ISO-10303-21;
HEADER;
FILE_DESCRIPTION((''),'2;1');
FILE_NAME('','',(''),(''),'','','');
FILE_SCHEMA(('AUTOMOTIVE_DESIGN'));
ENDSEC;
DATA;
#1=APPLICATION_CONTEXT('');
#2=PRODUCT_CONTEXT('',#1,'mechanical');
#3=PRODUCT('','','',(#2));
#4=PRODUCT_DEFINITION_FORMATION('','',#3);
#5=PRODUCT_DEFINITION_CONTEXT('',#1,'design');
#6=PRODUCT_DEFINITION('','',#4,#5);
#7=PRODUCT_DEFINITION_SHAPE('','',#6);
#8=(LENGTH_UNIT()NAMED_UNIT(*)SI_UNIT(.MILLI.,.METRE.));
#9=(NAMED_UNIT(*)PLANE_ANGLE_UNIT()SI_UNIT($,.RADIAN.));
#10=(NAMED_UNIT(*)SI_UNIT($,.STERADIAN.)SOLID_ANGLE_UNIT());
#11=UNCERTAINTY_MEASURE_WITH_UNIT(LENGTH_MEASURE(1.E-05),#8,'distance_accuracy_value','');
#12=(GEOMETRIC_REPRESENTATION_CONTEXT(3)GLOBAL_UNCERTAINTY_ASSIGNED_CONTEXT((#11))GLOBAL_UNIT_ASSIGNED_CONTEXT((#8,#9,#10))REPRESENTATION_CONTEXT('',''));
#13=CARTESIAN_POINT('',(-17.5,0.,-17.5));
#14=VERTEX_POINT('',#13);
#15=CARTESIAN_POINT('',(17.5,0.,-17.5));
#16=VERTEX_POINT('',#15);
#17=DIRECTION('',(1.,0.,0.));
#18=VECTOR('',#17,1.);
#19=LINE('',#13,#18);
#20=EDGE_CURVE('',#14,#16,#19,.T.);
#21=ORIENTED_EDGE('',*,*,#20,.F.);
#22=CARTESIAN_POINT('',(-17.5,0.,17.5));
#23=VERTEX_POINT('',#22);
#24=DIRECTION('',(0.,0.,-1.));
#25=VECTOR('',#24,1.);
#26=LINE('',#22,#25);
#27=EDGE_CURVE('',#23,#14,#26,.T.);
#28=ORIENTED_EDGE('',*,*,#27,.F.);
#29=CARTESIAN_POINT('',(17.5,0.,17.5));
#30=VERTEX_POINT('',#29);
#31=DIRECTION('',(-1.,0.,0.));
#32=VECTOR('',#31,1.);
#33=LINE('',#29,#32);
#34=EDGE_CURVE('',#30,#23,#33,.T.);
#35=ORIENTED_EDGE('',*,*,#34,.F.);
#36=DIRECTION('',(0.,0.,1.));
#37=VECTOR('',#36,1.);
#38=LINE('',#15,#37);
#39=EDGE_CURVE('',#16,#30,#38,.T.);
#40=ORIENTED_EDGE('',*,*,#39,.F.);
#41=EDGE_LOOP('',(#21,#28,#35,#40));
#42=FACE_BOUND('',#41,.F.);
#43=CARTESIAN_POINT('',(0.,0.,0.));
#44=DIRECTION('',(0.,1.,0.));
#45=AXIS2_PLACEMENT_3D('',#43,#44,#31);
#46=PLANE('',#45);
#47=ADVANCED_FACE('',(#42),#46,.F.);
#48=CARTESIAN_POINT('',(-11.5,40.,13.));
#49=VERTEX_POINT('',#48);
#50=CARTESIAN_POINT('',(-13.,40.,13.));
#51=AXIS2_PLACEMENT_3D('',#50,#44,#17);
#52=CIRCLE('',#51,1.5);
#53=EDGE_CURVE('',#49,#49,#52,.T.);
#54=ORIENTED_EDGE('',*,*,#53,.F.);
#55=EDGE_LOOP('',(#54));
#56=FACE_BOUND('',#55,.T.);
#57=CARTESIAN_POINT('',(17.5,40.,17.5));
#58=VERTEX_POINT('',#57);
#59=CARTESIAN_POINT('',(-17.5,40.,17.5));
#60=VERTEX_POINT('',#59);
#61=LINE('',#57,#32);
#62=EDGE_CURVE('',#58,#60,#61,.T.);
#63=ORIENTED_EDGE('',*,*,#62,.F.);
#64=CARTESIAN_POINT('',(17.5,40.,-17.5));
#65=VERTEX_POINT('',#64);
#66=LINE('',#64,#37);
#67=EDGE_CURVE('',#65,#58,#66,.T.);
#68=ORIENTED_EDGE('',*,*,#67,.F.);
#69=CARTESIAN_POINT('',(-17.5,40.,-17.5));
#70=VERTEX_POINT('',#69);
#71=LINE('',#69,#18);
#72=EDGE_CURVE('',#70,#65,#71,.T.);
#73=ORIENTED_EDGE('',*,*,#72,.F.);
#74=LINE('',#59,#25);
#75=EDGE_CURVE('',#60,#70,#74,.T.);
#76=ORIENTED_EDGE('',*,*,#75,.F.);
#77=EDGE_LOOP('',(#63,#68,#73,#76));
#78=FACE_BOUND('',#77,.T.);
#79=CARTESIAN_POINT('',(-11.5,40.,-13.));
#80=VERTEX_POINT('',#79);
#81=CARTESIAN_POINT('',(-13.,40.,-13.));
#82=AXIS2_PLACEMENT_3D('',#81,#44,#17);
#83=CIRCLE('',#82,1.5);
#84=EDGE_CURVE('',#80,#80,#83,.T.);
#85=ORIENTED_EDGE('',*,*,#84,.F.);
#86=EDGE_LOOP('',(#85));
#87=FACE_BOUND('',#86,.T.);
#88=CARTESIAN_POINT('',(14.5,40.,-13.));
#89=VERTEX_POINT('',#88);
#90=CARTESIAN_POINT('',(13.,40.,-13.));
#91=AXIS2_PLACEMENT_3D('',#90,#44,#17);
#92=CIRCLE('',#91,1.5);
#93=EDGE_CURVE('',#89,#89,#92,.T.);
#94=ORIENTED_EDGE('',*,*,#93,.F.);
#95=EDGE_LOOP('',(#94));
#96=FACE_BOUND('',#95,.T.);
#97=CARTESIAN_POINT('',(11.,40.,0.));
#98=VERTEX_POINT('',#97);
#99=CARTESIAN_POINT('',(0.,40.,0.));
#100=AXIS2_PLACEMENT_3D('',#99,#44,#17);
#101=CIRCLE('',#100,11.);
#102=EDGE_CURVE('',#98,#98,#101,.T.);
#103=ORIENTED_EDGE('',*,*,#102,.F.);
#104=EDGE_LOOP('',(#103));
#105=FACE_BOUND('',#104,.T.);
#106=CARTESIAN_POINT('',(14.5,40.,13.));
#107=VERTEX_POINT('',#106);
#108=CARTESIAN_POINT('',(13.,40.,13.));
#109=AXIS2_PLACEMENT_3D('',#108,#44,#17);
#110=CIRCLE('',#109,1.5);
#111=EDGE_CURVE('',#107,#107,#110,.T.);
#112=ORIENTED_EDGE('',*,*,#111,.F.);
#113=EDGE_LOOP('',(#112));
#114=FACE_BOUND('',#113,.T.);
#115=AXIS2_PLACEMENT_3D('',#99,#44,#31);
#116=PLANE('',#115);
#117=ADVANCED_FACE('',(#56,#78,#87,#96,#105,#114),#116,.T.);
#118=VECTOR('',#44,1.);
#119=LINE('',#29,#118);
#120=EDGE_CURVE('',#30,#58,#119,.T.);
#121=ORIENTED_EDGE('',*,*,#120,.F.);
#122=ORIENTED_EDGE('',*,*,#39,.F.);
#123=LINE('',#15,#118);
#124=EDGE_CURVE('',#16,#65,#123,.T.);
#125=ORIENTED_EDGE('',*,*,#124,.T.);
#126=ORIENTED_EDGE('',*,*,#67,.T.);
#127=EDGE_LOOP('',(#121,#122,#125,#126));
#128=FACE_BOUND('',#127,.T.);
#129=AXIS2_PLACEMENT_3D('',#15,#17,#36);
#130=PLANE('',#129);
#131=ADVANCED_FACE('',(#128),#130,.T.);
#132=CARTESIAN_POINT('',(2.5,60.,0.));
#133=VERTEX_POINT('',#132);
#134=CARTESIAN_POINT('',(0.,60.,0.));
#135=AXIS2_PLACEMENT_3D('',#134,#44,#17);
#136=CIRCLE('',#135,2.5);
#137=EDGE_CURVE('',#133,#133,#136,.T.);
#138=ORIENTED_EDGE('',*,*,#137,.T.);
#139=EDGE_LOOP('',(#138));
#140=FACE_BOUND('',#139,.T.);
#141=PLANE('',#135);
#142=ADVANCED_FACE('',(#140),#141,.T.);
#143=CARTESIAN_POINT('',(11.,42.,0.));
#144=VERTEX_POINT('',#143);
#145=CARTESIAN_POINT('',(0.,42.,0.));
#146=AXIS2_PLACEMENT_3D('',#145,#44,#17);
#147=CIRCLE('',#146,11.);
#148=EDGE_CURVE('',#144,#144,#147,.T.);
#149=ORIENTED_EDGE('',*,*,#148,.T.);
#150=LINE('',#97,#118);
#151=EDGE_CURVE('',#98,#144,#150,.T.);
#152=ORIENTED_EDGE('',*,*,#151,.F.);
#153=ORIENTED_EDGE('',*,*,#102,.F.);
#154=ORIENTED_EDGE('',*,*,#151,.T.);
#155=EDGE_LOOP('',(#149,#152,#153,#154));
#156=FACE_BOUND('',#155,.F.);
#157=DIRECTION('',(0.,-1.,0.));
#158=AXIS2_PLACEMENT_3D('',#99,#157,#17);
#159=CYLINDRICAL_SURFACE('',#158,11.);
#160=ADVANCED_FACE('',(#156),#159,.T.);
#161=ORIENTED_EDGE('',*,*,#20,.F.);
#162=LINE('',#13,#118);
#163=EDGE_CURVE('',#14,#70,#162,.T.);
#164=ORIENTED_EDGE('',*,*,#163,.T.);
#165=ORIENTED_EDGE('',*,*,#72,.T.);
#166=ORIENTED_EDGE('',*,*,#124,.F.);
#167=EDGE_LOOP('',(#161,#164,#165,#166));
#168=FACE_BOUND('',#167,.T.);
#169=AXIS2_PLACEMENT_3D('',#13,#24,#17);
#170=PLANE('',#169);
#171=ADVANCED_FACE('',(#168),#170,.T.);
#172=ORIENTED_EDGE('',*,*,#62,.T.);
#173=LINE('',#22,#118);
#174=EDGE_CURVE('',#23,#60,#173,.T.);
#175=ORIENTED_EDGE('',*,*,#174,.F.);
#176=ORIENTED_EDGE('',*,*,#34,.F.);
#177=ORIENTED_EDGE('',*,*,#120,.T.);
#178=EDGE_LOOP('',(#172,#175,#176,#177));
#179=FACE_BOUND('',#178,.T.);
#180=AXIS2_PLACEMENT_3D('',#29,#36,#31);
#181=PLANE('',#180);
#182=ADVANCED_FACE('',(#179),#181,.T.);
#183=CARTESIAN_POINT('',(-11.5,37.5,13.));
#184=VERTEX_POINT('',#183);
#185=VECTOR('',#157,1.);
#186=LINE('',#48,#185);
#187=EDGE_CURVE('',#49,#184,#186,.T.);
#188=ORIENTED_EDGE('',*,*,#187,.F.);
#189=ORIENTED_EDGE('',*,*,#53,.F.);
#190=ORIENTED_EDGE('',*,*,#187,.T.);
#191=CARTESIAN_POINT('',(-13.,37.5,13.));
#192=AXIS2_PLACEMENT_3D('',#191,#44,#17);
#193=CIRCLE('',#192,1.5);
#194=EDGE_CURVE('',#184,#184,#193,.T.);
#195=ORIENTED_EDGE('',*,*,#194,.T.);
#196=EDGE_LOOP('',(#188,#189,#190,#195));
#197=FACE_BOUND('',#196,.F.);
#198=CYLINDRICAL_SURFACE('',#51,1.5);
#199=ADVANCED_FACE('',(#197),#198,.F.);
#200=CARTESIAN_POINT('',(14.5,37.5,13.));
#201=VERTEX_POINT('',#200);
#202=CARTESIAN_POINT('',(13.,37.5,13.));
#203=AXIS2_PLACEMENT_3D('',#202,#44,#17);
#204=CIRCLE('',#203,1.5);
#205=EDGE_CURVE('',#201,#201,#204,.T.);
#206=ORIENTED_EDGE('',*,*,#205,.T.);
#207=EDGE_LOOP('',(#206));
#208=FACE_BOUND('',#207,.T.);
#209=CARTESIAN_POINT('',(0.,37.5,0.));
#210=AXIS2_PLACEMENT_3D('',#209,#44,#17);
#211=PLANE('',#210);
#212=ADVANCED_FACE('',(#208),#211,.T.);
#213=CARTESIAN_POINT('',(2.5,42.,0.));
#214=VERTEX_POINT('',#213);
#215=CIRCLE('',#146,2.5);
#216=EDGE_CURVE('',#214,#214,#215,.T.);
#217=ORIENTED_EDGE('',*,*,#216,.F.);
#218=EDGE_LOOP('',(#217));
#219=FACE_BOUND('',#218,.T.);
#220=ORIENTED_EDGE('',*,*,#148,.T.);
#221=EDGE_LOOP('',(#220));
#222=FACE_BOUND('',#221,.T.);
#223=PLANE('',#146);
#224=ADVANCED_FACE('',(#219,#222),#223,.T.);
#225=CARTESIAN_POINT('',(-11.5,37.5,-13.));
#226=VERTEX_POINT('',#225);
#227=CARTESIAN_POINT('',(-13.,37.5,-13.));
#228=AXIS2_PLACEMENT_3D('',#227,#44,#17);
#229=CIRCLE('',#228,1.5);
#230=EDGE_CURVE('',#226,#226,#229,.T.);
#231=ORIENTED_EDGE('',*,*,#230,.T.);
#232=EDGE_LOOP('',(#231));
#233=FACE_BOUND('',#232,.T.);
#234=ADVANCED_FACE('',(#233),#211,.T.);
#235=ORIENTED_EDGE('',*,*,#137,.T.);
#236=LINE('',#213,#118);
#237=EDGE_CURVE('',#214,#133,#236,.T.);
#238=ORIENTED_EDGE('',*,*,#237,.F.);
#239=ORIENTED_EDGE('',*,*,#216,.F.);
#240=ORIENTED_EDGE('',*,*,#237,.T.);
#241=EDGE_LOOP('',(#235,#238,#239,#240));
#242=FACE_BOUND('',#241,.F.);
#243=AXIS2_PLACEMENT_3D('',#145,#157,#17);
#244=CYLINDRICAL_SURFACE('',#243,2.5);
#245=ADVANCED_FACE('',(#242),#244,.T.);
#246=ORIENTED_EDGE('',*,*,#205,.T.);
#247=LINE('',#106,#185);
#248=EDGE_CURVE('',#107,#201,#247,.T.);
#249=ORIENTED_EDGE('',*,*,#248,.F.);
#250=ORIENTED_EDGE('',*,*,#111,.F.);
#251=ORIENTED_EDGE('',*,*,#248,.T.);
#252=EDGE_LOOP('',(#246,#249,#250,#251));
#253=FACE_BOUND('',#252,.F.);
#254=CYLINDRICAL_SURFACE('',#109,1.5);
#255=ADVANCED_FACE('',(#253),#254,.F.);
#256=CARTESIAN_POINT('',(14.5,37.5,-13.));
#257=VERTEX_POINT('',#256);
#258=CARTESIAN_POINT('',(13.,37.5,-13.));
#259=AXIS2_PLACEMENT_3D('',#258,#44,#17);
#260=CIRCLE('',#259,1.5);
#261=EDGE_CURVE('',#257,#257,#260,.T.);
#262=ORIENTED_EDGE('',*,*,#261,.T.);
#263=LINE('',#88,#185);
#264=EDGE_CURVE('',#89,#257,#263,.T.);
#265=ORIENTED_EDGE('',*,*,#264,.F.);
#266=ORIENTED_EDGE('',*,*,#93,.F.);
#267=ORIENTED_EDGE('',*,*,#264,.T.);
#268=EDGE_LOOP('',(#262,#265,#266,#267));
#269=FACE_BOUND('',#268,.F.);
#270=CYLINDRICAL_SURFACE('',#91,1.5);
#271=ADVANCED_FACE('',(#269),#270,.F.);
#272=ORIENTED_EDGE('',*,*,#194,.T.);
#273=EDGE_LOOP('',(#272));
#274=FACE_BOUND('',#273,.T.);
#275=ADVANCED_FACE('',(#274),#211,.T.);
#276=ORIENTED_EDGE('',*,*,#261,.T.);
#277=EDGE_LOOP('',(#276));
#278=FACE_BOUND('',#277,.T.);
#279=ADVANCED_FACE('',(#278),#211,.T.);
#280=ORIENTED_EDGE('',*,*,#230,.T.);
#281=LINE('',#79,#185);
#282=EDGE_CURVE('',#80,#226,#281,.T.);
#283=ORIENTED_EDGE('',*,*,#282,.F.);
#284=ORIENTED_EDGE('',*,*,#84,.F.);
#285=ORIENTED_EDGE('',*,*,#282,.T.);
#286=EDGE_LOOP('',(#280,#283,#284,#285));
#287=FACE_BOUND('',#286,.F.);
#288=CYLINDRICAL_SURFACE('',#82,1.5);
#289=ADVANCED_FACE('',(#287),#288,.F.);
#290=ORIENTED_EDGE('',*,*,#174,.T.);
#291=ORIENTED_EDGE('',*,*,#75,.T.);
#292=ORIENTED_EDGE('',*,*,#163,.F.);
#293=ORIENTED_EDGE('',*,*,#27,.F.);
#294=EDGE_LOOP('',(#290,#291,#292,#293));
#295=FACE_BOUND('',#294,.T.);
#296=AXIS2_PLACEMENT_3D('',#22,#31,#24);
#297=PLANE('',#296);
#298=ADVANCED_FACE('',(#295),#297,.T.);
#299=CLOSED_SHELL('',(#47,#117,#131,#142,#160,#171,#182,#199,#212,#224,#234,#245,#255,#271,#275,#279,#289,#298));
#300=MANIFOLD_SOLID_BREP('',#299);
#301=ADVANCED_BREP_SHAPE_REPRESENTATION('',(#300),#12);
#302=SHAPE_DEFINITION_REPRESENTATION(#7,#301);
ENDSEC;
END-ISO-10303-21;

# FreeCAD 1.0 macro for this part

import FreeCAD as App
import Part
import Sketcher

V = App.Vector


def add_polygon(sketch, points):
    """Adds a closed chain of lines whose ends are joined by coincident constraints."""
    first, n = sketch.GeometryCount, len(points)
    for a, b in zip(points, points[1:] + points[:1]):
        sketch.addGeometry(Part.LineSegment(App.Vector(*a, 0), App.Vector(*b, 0)), False)
    for i in range(n):
        sketch.addConstraint(Sketcher.Constraint("Coincident", first + i, 2, first + (i + 1) % n, 1))

doc = App.newDocument("Part")
body = doc.addObject("PartDesign::Body", "Body")

sketch1 = doc.addObject("Sketcher::SketchObject", "Sketch")
body.addObject(sketch1)
sketch1.AttachmentSupport = (doc.XZ_Plane, [""])
sketch1.MapMode = "FlatFace"
add_polygon(sketch1, [(-17.5, 17.5), (17.5, 17.5), (17.5, -17.5), (-17.5, -17.5)])
sketch1.addConstraint(Sketcher.Constraint("Horizontal", 0))
sketch1.addConstraint(Sketcher.Constraint("Vertical", 1))
sketch1.addConstraint(Sketcher.Constraint("Horizontal", 2))
sketch1.addConstraint(Sketcher.Constraint("Vertical", 3))
sketch1.addConstraint(Sketcher.Constraint("Symmetric", 0, 2, 2, 2, -1, 1))
sketch1.addConstraint(Sketcher.Constraint("Equal", 2, 1))
sketch1.addConstraint(Sketcher.Constraint("DistanceX", 0, 1, 0, 2, 35.0))
pad1 = doc.addObject("PartDesign::Pad", "Pad")
body.addObject(pad1)
pad1.Profile = sketch1
pad1.Length = 40
pad1.Reversed = True

sketch2 = doc.addObject("Sketcher::SketchObject", "Sketch001")
body.addObject(sketch2)
sketch2.AttachmentSupport = (doc.XZ_Plane, [""])
sketch2.MapMode = "FlatFace"
sketch2.AttachmentOffset = App.Placement(V(0, 0, -40), App.Rotation())
sketch2.addGeometry(Part.Circle(V(0, 0, 0), V(0, 0, 1), 11), False)
sketch2.addConstraint(Sketcher.Constraint("Coincident", 0, 3, -1, 1))
sketch2.addConstraint(Sketcher.Constraint("Diameter", 0, 22.0))
pad2 = doc.addObject("PartDesign::Pad", "Pad001")
body.addObject(pad2)
pad2.Profile = sketch2
pad2.Length = 2
pad2.Reversed = True

sketch3 = doc.addObject("Sketcher::SketchObject", "Sketch002")
body.addObject(sketch3)
sketch3.AttachmentSupport = (doc.XZ_Plane, [""])
sketch3.MapMode = "FlatFace"
sketch3.AttachmentOffset = App.Placement(V(0, 0, -42), App.Rotation())
sketch3.addGeometry(Part.Circle(V(0, 0, 0), V(0, 0, 1), 2.5), False)
sketch3.addConstraint(Sketcher.Constraint("Coincident", 0, 3, -1, 1))
sketch3.addConstraint(Sketcher.Constraint("Diameter", 0, 5.0))
pad3 = doc.addObject("PartDesign::Pad", "Pad002")
body.addObject(pad3)
pad3.Profile = sketch3
pad3.Length = 18
pad3.Reversed = True

sketch4 = doc.addObject("Sketcher::SketchObject", "Sketch003")
body.addObject(sketch4)
sketch4.AttachmentSupport = (doc.XZ_Plane, [""])
sketch4.MapMode = "FlatFace"
sketch4.AttachmentOffset = App.Placement(V(0, 0, -40), App.Rotation())
sketch4.addGeometry(Part.Circle(V(-13, 13, 0), V(0, 0, 1), 1.5), False)
sketch4.addGeometry(Part.Circle(V(13, 13, 0), V(0, 0, 1), 1.5), False)
sketch4.addGeometry(Part.Circle(V(13, -13, 0), V(0, 0, 1), 1.5), False)
sketch4.addGeometry(Part.Circle(V(-13, -13, 0), V(0, 0, 1), 1.5), False)
sketch4.addConstraint(Sketcher.Constraint("Equal", 0, 1))
sketch4.addConstraint(Sketcher.Constraint("Equal", 1, 2))
sketch4.addConstraint(Sketcher.Constraint("Equal", 2, 3))
sketch4.addConstraint(Sketcher.Constraint("Symmetric", 0, 3, 2, 3, -1, 1))
sketch4.addConstraint(Sketcher.Constraint("Symmetric", 1, 3, 3, 3, -1, 1))
sketch4.addConstraint(Sketcher.Constraint("Symmetric", 0, 3, 1, 3, -2))
sketch4.addConstraint(Sketcher.Constraint("Diameter", 0, 3.0))
sketch4.addConstraint(Sketcher.Constraint("DistanceX", 0, 3, 1, 3, 26.0))
sketch4.addConstraint(Sketcher.Constraint("DistanceY", 2, 3, 1, 3, 26.0))
pocket1 = doc.addObject("PartDesign::Pocket", "Pocket")
body.addObject(pocket1)
pocket1.Profile = sketch4
pocket1.Length = 2.5
pocket1.Reversed = True

doc.recompute()
